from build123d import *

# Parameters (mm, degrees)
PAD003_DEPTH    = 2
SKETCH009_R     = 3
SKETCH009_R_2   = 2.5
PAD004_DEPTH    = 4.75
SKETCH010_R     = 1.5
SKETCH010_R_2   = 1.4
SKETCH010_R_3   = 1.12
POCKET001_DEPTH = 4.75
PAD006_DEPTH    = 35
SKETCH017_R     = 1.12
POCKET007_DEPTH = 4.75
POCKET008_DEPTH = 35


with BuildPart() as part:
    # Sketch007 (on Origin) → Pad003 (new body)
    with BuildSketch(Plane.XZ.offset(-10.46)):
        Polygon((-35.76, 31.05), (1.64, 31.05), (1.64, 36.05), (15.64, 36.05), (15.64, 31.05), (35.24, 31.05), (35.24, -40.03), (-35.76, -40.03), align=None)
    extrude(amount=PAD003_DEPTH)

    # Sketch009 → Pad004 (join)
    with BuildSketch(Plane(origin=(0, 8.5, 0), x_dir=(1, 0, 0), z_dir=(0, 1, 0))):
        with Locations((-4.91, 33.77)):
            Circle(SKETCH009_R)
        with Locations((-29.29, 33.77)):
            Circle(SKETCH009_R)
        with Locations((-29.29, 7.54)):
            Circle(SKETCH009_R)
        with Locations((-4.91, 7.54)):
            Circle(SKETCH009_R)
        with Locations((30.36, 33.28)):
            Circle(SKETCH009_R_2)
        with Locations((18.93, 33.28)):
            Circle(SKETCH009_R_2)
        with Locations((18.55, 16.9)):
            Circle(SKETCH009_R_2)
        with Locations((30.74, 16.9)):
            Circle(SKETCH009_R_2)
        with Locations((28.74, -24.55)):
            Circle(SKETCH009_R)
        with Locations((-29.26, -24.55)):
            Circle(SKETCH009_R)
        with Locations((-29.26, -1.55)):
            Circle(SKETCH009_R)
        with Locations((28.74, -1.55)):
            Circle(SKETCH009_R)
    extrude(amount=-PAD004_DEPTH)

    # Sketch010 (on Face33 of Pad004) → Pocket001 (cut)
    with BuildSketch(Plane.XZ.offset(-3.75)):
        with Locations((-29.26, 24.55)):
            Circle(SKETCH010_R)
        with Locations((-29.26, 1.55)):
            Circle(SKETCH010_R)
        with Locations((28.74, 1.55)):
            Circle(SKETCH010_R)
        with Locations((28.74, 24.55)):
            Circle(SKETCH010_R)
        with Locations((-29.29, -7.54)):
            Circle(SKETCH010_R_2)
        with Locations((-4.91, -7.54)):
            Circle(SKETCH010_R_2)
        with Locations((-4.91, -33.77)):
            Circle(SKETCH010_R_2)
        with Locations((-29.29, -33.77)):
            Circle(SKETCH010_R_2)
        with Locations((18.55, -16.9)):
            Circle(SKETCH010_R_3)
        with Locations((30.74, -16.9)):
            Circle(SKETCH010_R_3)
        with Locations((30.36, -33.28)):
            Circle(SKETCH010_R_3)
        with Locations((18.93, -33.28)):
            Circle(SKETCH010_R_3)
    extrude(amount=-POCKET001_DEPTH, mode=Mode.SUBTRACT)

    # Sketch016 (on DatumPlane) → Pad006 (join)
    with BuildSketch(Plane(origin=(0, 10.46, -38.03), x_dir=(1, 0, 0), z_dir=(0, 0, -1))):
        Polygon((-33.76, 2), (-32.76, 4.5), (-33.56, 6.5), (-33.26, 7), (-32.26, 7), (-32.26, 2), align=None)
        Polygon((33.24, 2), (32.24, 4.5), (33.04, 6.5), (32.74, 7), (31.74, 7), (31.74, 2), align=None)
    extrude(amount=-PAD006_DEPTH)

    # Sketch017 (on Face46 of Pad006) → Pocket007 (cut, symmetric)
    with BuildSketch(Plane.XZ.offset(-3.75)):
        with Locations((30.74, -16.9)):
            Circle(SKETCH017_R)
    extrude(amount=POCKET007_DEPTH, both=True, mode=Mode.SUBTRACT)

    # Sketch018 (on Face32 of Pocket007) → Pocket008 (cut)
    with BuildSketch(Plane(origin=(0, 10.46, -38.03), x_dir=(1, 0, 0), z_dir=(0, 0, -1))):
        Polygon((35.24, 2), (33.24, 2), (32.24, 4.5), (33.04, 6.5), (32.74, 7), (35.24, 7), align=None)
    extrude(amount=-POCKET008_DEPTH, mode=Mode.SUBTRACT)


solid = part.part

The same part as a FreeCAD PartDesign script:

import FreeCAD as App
import Part
import Sketcher
Q = App.Units.Quantity

doc = App.newDocument("Part")
body = doc.addObject("PartDesign::Body", "Body")

# Sketch on XZ plane
sketch1 = body.newObject("Sketcher::SketchObject", "Sketch")
sketch1.AttachmentSupport = (doc.getObject("XZ_Plane"), [""])
sketch1.MapMode = "FlatFace"
sketch1.AttachmentOffset = App.Placement(App.Vector(0, 0, -10.46), App.Rotation())
sketch1.addGeometry([
    Part.LineSegment(App.Vector(1.6, 31.1, 0), App.Vector(-35.8, 31.1, 0)),  # 0
    Part.LineSegment(App.Vector(-35.8, 31.1, 0), App.Vector(-35.8, -40, 0)),  # 1
    Part.LineSegment(App.Vector(-35.8, -40, 0), App.Vector(35.2, -40, 0)),  # 2
    Part.LineSegment(App.Vector(35.2, -40, 0), App.Vector(35.2, 31.1, 0)),  # 3
    Part.LineSegment(App.Vector(35.2, 31.1, 0), App.Vector(15.6, 31.1, 0)),  # 4
    Part.LineSegment(App.Vector(15.6, 31.1, 0), App.Vector(15.6, 36, 0)),  # 5
    Part.LineSegment(App.Vector(15.6, 36, 0), App.Vector(1.6, 36, 0)),  # 6
    Part.LineSegment(App.Vector(1.6, 36, 0), App.Vector(1.6, 31.1, 0)),  # 7
], False)
sketch1.addConstraint([
    Sketcher.Constraint("Coincident", 0, 2, 1, 1),
    Sketcher.Constraint("Coincident", 1, 2, 2, 1),
    Sketcher.Constraint("Coincident", 2, 2, 3, 1),
    Sketcher.Constraint("Coincident", 3, 2, 4, 1),
    Sketcher.Constraint("Coincident", 4, 2, 5, 1),
    Sketcher.Constraint("Coincident", 5, 2, 6, 1),
    Sketcher.Constraint("Coincident", 6, 2, 7, 1),
    Sketcher.Constraint("Coincident", 7, 2, 0, 1),
    Sketcher.Constraint("Horizontal", 0),
    Sketcher.Constraint("Vertical", 1),
    Sketcher.Constraint("Horizontal", 2),
    Sketcher.Constraint("Vertical", 3),
    Sketcher.Constraint("Horizontal", 4),
    Sketcher.Constraint("Vertical", 5),
    Sketcher.Constraint("Horizontal", 6),
    Sketcher.Constraint("Vertical", 7),
    Sketcher.Constraint("Horizontal", 0, 2, 3, 2),
    Sketcher.Constraint("DistanceX", 2, 1, 2, 2, Q("71 mm")),
    Sketcher.Constraint("DistanceX", 6, 2, 6, 1, Q("14 mm")),
    Sketcher.Constraint("DistanceY", 5, 1, 5, 2, Q("5 mm")),
    Sketcher.Constraint("DistanceX", 0, 2, 0, 1, Q("37.4 mm")),
    Sketcher.Constraint("DistanceY", 1, 2, 1, 1, Q("71.08 mm")),
    Sketcher.Constraint("DistanceX", 0, 2, -1, 1, Q("35.76 mm")),
    Sketcher.Constraint("DistanceY", -1, 1, 0, 2, Q("31.05 mm")),
])
pad1 = body.newObject("PartDesign::Pad", "Pad")
pad1.Profile = sketch1
pad1.Length = 2

# Sketch on XZ plane
sketch2 = body.newObject("Sketcher::SketchObject", "Sketch001")
sketch2.AttachmentSupport = (doc.getObject("XZ_Plane"), [""])
sketch2.MapMode = "FlatFace"
sketch2.AttachmentOffset = App.Placement(App.Vector(0, 0, -8.5), App.Rotation())
sketch2.addGeometry([
    Part.Circle(App.Vector(-4.9, -33.8, 0), App.Vector(0, 0, 1), 3),  # 0
    Part.Circle(App.Vector(-29.3, -33.8, 0), App.Vector(0, 0, 1), 3),  # 1
    Part.Circle(App.Vector(-29.3, -7.5, 0), App.Vector(0, 0, 1), 3),  # 2
    Part.Circle(App.Vector(-4.9, -7.5, 0), App.Vector(0, 0, 1), 3),  # 3
    Part.Circle(App.Vector(30.4, -33.3, 0), App.Vector(0, 0, 1), 2.5),  # 4
    Part.Circle(App.Vector(18.9, -33.3, 0), App.Vector(0, 0, 1), 2.5),  # 5
    Part.Circle(App.Vector(18.6, -16.9, 0), App.Vector(0, 0, 1), 2.5),  # 6
    Part.Circle(App.Vector(30.7, -16.9, 0), App.Vector(0, 0, 1), 2.5),  # 7
    Part.Circle(App.Vector(28.7, 24.6, 0), App.Vector(0, 0, 1), 3),  # 8
    Part.Circle(App.Vector(-29.3, 24.6, 0), App.Vector(0, 0, 1), 3),  # 9
    Part.Circle(App.Vector(-29.3, 1.6, 0), App.Vector(0, 0, 1), 3),  # 10
    Part.Circle(App.Vector(28.7, 1.6, 0), App.Vector(0, 0, 1), 3),  # 11
], False)
sketch2.addConstraint([
    Sketcher.Constraint("Equal", 0, 1),
    Sketcher.Constraint("Equal", 1, 2),
    Sketcher.Constraint("Equal", 2, 3),
    Sketcher.Constraint("Equal", 4, 5),
    Sketcher.Constraint("Equal", 5, 6),
    Sketcher.Constraint("Equal", 6, 7),
    Sketcher.Constraint("Equal", 3, 8),
    Sketcher.Constraint("Equal", 8, 9),
    Sketcher.Constraint("Equal", 9, 10),
    Sketcher.Constraint("Equal", 10, 11),
    Sketcher.Constraint("Horizontal", 0, 3, 1, 3),
    Sketcher.Constraint("Horizontal", 2, 3, 3, 3),
    Sketcher.Constraint("Horizontal", 4, 3, 5, 3),
    Sketcher.Constraint("Horizontal", 6, 3, 7, 3),
    Sketcher.Constraint("Horizontal", 8, 3, 9, 3),
    Sketcher.Constraint("Horizontal", 10, 3, 11, 3),
    Sketcher.Constraint("Vertical", 1, 3, 2, 3),
    Sketcher.Constraint("Vertical", 0, 3, 3, 3),
    Sketcher.Constraint("Vertical", 9, 3, 10, 3),
    Sketcher.Constraint("Vertical", 8, 3, 11, 3),
    Sketcher.Constraint("Diameter", 0, Q("6 mm")),
    Sketcher.Constraint("Diameter", 4, Q("5 mm")),
    Sketcher.Constraint("DistanceX", 8, 3, 7, 3, Q("2 mm")),
    Sketcher.Constraint("DistanceX", 9, 3, 8, 3, Q("58 mm")),
    Sketcher.Constraint("DistanceY", 10, 3, 9, 3, Q("23 mm")),
    Sketcher.Constraint("DistanceY", 6, 3, -1, 1, Q("16.9 mm")),
    Sketcher.Constraint("DistanceX", 0, 3, -1, 1, Q("4.91 mm")),
    Sketcher.Constraint("DistanceY", 0, 3, -1, 1, Q("33.77 mm")),
    Sketcher.Constraint("DistanceX", 1, 3, -1, 1, Q("29.29 mm")),
    Sketcher.Constraint("DistanceY", 2, 3, -1, 1, Q("7.54 mm")),
    Sketcher.Constraint("DistanceX", -1, 1, 4, 3, Q("30.36 mm")),
    Sketcher.Constraint("DistanceY", 4, 3, -1, 1, Q("33.28 mm")),
    Sketcher.Constraint("DistanceX", -1, 1, 5, 3, Q("18.93 mm")),
    Sketcher.Constraint("DistanceX", -1, 1, 6, 3, Q("18.55 mm")),
    Sketcher.Constraint("DistanceX", -1, 1, 7, 3, Q("30.74 mm")),
    Sketcher.Constraint("DistanceY", -1, 1, 8, 3, Q("24.55 mm")),
])
pad2 = body.newObject("PartDesign::Pad", "Pad001")
pad2.Profile = sketch2
pad2.Length = 4.75

# Sketch on XZ plane
sketch3 = body.newObject("Sketcher::SketchObject", "Sketch002")
sketch3.AttachmentSupport = (doc.getObject("XZ_Plane"), [""])
sketch3.MapMode = "FlatFace"
sketch3.AttachmentOffset = App.Placement(App.Vector(0, 0, -3.75), App.Rotation())
sketch3.addGeometry([
    Part.Circle(App.Vector(-29.3, 24.6, 0), App.Vector(0, 0, 1), 1.5),  # 0
    Part.Circle(App.Vector(-29.3, 1.6, 0), App.Vector(0, 0, 1), 1.5),  # 1
    Part.Circle(App.Vector(28.7, 1.6, 0), App.Vector(0, 0, 1), 1.5),  # 2
    Part.Circle(App.Vector(28.7, 24.6, 0), App.Vector(0, 0, 1), 1.5),  # 3
    Part.Circle(App.Vector(-29.3, -7.5, 0), App.Vector(0, 0, 1), 1.4),  # 4
    Part.Circle(App.Vector(-4.9, -7.5, 0), App.Vector(0, 0, 1), 1.4),  # 5
    Part.Circle(App.Vector(-4.9, -33.8, 0), App.Vector(0, 0, 1), 1.4),  # 6
    Part.Circle(App.Vector(-29.3, -33.8, 0), App.Vector(0, 0, 1), 1.4),  # 7
    Part.Circle(App.Vector(18.6, -16.9, 0), App.Vector(0, 0, 1), 1.1),  # 8
    Part.Circle(App.Vector(30.7, -16.9, 0), App.Vector(0, 0, 1), 1.1),  # 9
    Part.Circle(App.Vector(30.4, -33.3, 0), App.Vector(0, 0, 1), 1.1),  # 10
    Part.Circle(App.Vector(18.9, -33.3, 0), App.Vector(0, 0, 1), 1.1),  # 11
], False)
sketch3.addConstraint([
    Sketcher.Constraint("Equal", 0, 1),
    Sketcher.Constraint("Equal", 1, 2),
    Sketcher.Constraint("Equal", 2, 3),
    Sketcher.Constraint("Equal", 4, 5),
    Sketcher.Constraint("Equal", 5, 6),
    Sketcher.Constraint("Equal", 6, 7),
    Sketcher.Constraint("Equal", 8, 9),
    Sketcher.Constraint("Equal", 9, 10),
    Sketcher.Constraint("Equal", 10, 11),
    Sketcher.Constraint("Horizontal", 1, 3, 2, 3),
    Sketcher.Constraint("Horizontal", 0, 3, 3, 3),
    Sketcher.Constraint("Horizontal", 4, 3, 5, 3),
    Sketcher.Constraint("Horizontal", 6, 3, 7, 3),
    Sketcher.Constraint("Horizontal", 8, 3, 9, 3),
    Sketcher.Constraint("Horizontal", 10, 3, 11, 3),
    Sketcher.Constraint("Vertical", 0, 3, 1, 3),
    Sketcher.Constraint("Vertical", 2, 3, 3, 3),
    Sketcher.Constraint("Vertical", 5, 3, 6, 3),
    Sketcher.Constraint("Vertical", 4, 3, 7, 3),
    Sketcher.Constraint("Diameter", 0, Q("3 mm")),
    Sketcher.Constraint("Diameter", 4, Q("2.8 mm")),
    Sketcher.Constraint("Diameter", 8, Q("2.24 mm")),
    Sketcher.Constraint("DistanceY", 1, 3, 0, 3, Q("23 mm")),
    Sketcher.Constraint("DistanceX", 1, 3, 2, 3, Q("58 mm")),
    Sketcher.Constraint("DistanceX", 2, 3, 9, 3, Q("2 mm")),
    Sketcher.Constraint("DistanceY", 8, 3, -1, 1, Q("16.9 mm")),
    Sketcher.Constraint("DistanceX", 0, 3, -1, 1, Q("29.26 mm")),
    Sketcher.Constraint("DistanceY", -1, 1, 0, 3, Q("24.55 mm")),
    Sketcher.Constraint("DistanceX", 4, 3, -1, 1, Q("29.29 mm")),
    Sketcher.Constraint("DistanceY", 4, 3, -1, 1, Q("7.54 mm")),
    Sketcher.Constraint("DistanceX", 5, 3, -1, 1, Q("4.91 mm")),
    Sketcher.Constraint("DistanceY", 6, 3, -1, 1, Q("33.77 mm")),
    Sketcher.Constraint("DistanceX", -1, 1, 8, 3, Q("18.55 mm")),
    Sketcher.Constraint("DistanceX", -1, 1, 10, 3, Q("30.36 mm")),
    Sketcher.Constraint("DistanceY", 10, 3, -1, 1, Q("33.28 mm")),
    Sketcher.Constraint("DistanceX", -1, 1, 11, 3, Q("18.93 mm")),
])
pocket1 = body.newObject("PartDesign::Pocket", "Pocket")
pocket1.Profile = sketch3
pocket1.Length = 4.75

# Sketch on XY plane
sketch4 = body.newObject("Sketcher::SketchObject", "Sketch003")
sketch4.AttachmentSupport = (doc.getObject("XY_Plane"), [""])
sketch4.MapMode = "FlatFace"
sketch4.AttachmentOffset = App.Placement(App.Vector(0, 0, -38.03), App.Rotation())
sketch4.addGeometry([
    Part.LineSegment(App.Vector(-32.8, 6, 0), App.Vector(-33.8, 8.5, 0)),  # 0
    Part.LineSegment(App.Vector(-33.8, 8.5, 0), App.Vector(-32.3, 8.5, 0)),  # 1
    Part.LineSegment(App.Vector(-32.3, 8.5, 0), App.Vector(-32.3, 3.5, 0)),  # 2
    Part.LineSegment(App.Vector(-32.3, 3.5, 0), App.Vector(-33.3, 3.5, 0)),  # 3
    Part.LineSegment(App.Vector(-33.3, 3.5, 0), App.Vector(-33.6, 4, 0)),  # 4
    Part.LineSegment(App.Vector(-33.6, 4, 0), App.Vector(-32.8, 6, 0)),  # 5
    Part.LineSegment(App.Vector(33.2, 8.5, 0), App.Vector(32.2, 6, 0)),  # 6
    Part.LineSegment(App.Vector(32.2, 6, 0), App.Vector(33, 4, 0)),  # 7
    Part.LineSegment(App.Vector(33, 4, 0), App.Vector(32.7, 3.5, 0)),  # 8
    Part.LineSegment(App.Vector(32.7, 3.5, 0), App.Vector(31.7, 3.5, 0)),  # 9
    Part.LineSegment(App.Vector(31.7, 3.5, 0), App.Vector(31.7, 8.5, 0)),  # 10
    Part.LineSegment(App.Vector(31.7, 8.5, 0), App.Vector(33.2, 8.5, 0)),  # 11
], False)
sketch4.addConstraint([
    Sketcher.Constraint("Coincident", 0, 2, 1, 1),
    Sketcher.Constraint("Coincident", 1, 2, 2, 1),
    Sketcher.Constraint("Coincident", 2, 2, 3, 1),
    Sketcher.Constraint("Coincident", 3, 2, 4, 1),
    Sketcher.Constraint("Coincident", 4, 2, 5, 1),
    Sketcher.Constraint("Coincident", 5, 2, 0, 1),
    Sketcher.Constraint("Coincident", 6, 2, 7, 1),
    Sketcher.Constraint("Coincident", 7, 2, 8, 1),
    Sketcher.Constraint("Coincident", 8, 2, 9, 1),
    Sketcher.Constraint("Coincident", 9, 2, 10, 1),
    Sketcher.Constraint("Coincident", 10, 2, 11, 1),
    Sketcher.Constraint("Coincident", 11, 2, 6, 1),
    Sketcher.Constraint("Horizontal", 1),
    Sketcher.Constraint("Vertical", 2),
    Sketcher.Constraint("Horizontal", 3),
    Sketcher.Constraint("Horizontal", 9),
    Sketcher.Constraint("Vertical", 10),
    Sketcher.Constraint("Horizontal", 11),
    Sketcher.Constraint("Parallel", 5, 6),
    Sketcher.Constraint("Parallel", 0, 7),
    Sketcher.Constraint("Horizontal", 5, 2, 6, 2),
    Sketcher.Constraint("Horizontal", 4, 2, 7, 2),
    Sketcher.Constraint("Horizontal", 3, 2, 8, 2),
    Sketcher.Constraint("Horizontal", 1, 2, 10, 2),
    Sketcher.Constraint("Equal", 3, 9),
    Sketcher.Constraint("Equal", 1, 11),
    Sketcher.Constraint("Equal", 0, 6),
    Sketcher.Constraint("DistanceX", 3, 2, 3, 1, Q("1 mm")),
    Sketcher.Constraint("DistanceY", 2, 2, 2, 1, Q("5 mm")),
    Sketcher.Constraint("DistanceX", 1, 1, 1, 2, Q("1.5 mm")),
    Sketcher.Constraint("DistanceY", 4, 2, 5, 2, Q("2 mm")),
    Sketcher.Constraint("DistanceX", 0, 2, 5, 2, Q("1 mm")),
    Sketcher.Constraint("DistanceX", 5, 2, 6, 2, Q("65 mm")),
    Sketcher.Constraint("DistanceX", 4, 2, 3, 2, Q("0.3 mm")),
    Sketcher.Constraint("DistanceX", 0, 2, -1, 1, Q("33.76 mm")),
    Sketcher.Constraint("DistanceY", -1, 1, 0, 2, Q("8.46 mm")),
])
pad3 = body.newObject("PartDesign::Pad", "Pad002")
pad3.Profile = sketch4
pad3.Length = 35

# Sketch on XZ plane
sketch5 = body.newObject("Sketcher::SketchObject", "Sketch004")
sketch5.AttachmentSupport = (doc.getObject("XZ_Plane"), [""])
sketch5.MapMode = "FlatFace"
sketch5.AttachmentOffset = App.Placement(App.Vector(0, 0, -3.75), App.Rotation())
sketch5.addGeometry(Part.Circle(App.Vector(30.7, -16.9, 0), App.Vector(0, 0, 1), 1.1), False)
sketch5.addConstraint([
    Sketcher.Constraint("Diameter", 0, Q("2.24 mm")),
    Sketcher.Constraint("DistanceY", 0, 3, -1, 1, Q("16.9 mm")),
    Sketcher.Constraint("DistanceX", -1, 1, 0, 3, Q("30.74 mm")),
])
pocket2 = body.newObject("PartDesign::Pocket", "Pocket001")
pocket2.Profile = sketch5
pocket2.Length = 9.5
pocket2.Midplane = True

# Sketch on XY plane
sketch6 = body.newObject("Sketcher::SketchObject", "Sketch005")
sketch6.AttachmentSupport = (doc.getObject("XY_Plane"), [""])
sketch6.MapMode = "FlatFace"
sketch6.AttachmentOffset = App.Placement(App.Vector(0, 0, -38.03), App.Rotation())
sketch6.addGeometry([
    Part.LineSegment(App.Vector(33.2, 8.5, 0), App.Vector(35.2, 8.5, 0)),  # 0
    Part.LineSegment(App.Vector(35.2, 8.5, 0), App.Vector(35.2, 3.5, 0)),  # 1
    Part.LineSegment(App.Vector(35.2, 3.5, 0), App.Vector(32.7, 3.5, 0)),  # 2
    Part.LineSegment(App.Vector(32.7, 3.5, 0), App.Vector(33, 4, 0)),  # 3
    Part.LineSegment(App.Vector(33, 4, 0), App.Vector(32.2, 6, 0)),  # 4
    Part.LineSegment(App.Vector(32.2, 6, 0), App.Vector(33.2, 8.5, 0)),  # 5
], False)
sketch6.addConstraint([
    Sketcher.Constraint("Coincident", 0, 2, 1, 1),
    Sketcher.Constraint("Coincident", 1, 2, 2, 1),
    Sketcher.Constraint("Coincident", 2, 2, 3, 1),
    Sketcher.Constraint("Coincident", 3, 2, 4, 1),
    Sketcher.Constraint("Coincident", 4, 2, 5, 1),
    Sketcher.Constraint("Coincident", 5, 2, 0, 1),
    Sketcher.Constraint("Horizontal", 0),
    Sketcher.Constraint("Vertical", 1),
    Sketcher.Constraint("Horizontal", 2),
    Sketcher.Constraint("DistanceX", 0, 1, 0, 2, Q("2 mm")),
    Sketcher.Constraint("DistanceY", 1, 2, 1, 1, Q("5 mm")),
    Sketcher.Constraint("DistanceX", 2, 2, 2, 1, Q("2.5 mm")),
    Sketcher.Constraint("DistanceY", 3, 2, 4, 2, Q("2 mm")),
    Sketcher.Constraint("DistanceX", 4, 2, 1, 2, Q("3 mm")),
    Sketcher.Constraint("DistanceX", 2, 2, 3, 2, Q("0.3 mm")),
    Sketcher.Constraint("DistanceY", 2, 2, 3, 2, Q("0.5 mm")),
    Sketcher.Constraint("DistanceX", -1, 1, 0, 2, Q("35.24 mm")),
    Sketcher.Constraint("DistanceY", -1, 1, 0, 2, Q("8.46 mm")),
])
pocket3 = body.newObject("PartDesign::Pocket", "Pocket002")
pocket3.Profile = sketch6
pocket3.Length = 35
pocket3.Reversed = True

doc.recompute()
